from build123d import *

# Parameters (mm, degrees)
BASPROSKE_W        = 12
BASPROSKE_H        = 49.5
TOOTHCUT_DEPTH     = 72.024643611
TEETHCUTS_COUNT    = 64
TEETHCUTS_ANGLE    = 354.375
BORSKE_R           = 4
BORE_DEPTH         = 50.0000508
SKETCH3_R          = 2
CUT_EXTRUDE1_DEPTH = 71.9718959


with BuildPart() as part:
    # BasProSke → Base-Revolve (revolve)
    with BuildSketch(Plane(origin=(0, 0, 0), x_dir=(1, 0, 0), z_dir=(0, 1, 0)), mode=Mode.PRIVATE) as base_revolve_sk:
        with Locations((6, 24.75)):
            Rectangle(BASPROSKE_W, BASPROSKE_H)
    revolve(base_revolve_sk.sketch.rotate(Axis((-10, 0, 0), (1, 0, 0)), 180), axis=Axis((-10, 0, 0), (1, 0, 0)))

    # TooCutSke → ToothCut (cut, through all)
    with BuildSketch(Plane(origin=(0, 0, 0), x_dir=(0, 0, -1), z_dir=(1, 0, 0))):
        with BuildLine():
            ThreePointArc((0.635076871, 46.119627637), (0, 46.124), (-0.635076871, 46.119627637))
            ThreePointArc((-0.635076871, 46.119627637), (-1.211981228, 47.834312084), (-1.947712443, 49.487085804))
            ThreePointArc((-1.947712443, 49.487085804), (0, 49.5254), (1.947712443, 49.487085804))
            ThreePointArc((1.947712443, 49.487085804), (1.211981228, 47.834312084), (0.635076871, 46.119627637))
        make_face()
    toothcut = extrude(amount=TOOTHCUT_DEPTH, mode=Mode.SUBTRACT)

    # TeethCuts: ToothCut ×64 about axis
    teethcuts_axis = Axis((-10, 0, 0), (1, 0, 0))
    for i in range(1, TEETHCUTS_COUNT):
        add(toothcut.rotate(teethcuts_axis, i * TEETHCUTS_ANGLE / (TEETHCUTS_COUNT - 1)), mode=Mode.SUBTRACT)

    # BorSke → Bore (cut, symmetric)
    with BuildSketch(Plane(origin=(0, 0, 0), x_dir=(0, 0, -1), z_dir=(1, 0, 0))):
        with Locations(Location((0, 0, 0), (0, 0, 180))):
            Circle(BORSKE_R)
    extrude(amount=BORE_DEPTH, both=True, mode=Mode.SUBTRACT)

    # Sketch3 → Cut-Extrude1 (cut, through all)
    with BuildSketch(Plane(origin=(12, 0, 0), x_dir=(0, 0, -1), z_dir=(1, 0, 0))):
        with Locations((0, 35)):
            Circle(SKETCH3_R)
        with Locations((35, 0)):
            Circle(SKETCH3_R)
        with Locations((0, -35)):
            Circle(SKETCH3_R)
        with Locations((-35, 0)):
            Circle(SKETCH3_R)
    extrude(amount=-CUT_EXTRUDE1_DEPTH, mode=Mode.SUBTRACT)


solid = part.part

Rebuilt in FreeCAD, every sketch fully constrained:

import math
import FreeCAD as App
import Part
import Sketcher
from FreeCAD import Vector
Q = App.Units.Quantity

doc = App.newDocument("Part")
body = doc.addObject("PartDesign::Body", "Body")

sketch1 = body.newObject("Sketcher::SketchObject", "Sketch")
sketch1.AttachmentSupport = (doc.getObject("XZ_Plane"), [""])
sketch1.MapMode = "FlatFace"
sketch1.addGeometry(Part.LineSegment(Vector(0, -50, 0), Vector(0, 0, 0)), False)
sketch1.addGeometry(Part.LineSegment(Vector(0, 0, 0), Vector(12, 0, 0)), False)
sketch1.addGeometry(Part.LineSegment(Vector(12, 0, 0), Vector(12, -50, 0)), False)
sketch1.addGeometry(Part.LineSegment(Vector(12, -50, 0), Vector(0, -50, 0)), False)
sketch1.addConstraint(Sketcher.Constraint("Coincident", 0, 2, 1, 1))
sketch1.addConstraint(Sketcher.Constraint("Coincident", 1, 2, 2, 1))
sketch1.addConstraint(Sketcher.Constraint("Coincident", 2, 2, 3, 1))
sketch1.addConstraint(Sketcher.Constraint("Coincident", 3, 2, 0, 1))
sketch1.addConstraint(Sketcher.Constraint("Vertical", 0))
sketch1.addConstraint(Sketcher.Constraint("Horizontal", 1))
sketch1.addConstraint(Sketcher.Constraint("Vertical", 2))
sketch1.addConstraint(Sketcher.Constraint("Horizontal", 3))
sketch1.addConstraint(Sketcher.Constraint("Coincident", 0, 2, -1, 1))
sketch1.addConstraint(Sketcher.Constraint("DistanceX", 1, 1, 1, 2, Q("12 mm")))
sketch1.addConstraint(Sketcher.Constraint("DistanceY", 0, 1, 0, 2, Q("49.5 mm")))
revolution = body.newObject("PartDesign::Revolution", "Revolution")
revolution.Profile = sketch1
revolution.ReferenceAxis = (sketch1, ["H_Axis"])
revolution.Angle = 360

sketch2 = body.newObject("Sketcher::SketchObject", "Sketch001")
sketch2.AttachmentSupport = (doc.getObject("YZ_Plane"), [""])
sketch2.MapMode = "FlatFace"
sketch2.addGeometry(Part.ArcOfCircle(Part.Circle(Vector(0, 0, 0), Vector(0, 0, 1), 46.1), math.radians(-0.79), math.radians(0.79)), False)
sketch2.addGeometry(Part.ArcOfCircle(Part.Circle(Vector(40.9, -19.1, 0), Vector(0, 0, 1), 19.2), math.radians(63.3), math.radians(74.1)), False)
sketch2.addGeometry(Part.ArcOfCircle(Part.Circle(Vector(0, 0, 0), Vector(0, 0, 1), 49.5), math.radians(-2.25), math.radians(2.25)), False)
sketch2.addGeometry(Part.ArcOfCircle(Part.Circle(Vector(40.9, 19.1, 0), Vector(0, 0, 1), 19.2), math.radians(-74.1), math.radians(-63.3)), False)
sketch2.addConstraint(Sketcher.Constraint("Coincident", 0, 1, 1, 2))
sketch2.addConstraint(Sketcher.Constraint("Coincident", 1, 1, 2, 1))
sketch2.addConstraint(Sketcher.Constraint("Coincident", 2, 2, 3, 2))
sketch2.addConstraint(Sketcher.Constraint("Coincident", 3, 1, 0, 2))
sketch2.addConstraint(Sketcher.Constraint("Coincident", 0, 3, -1, 1))
sketch2.addConstraint(Sketcher.Constraint("Coincident", 2, 3, -1, 1))
sketch2.addConstraint(Sketcher.Constraint("Equal", 1, 3))
sketch2.addConstraint(Sketcher.Constraint("Symmetric", 1, 3, 3, 3, -1))
sketch2.addConstraint(Sketcher.Constraint("Radius", 1, Q("19.2 mm")))
sketch2.addConstraint(Sketcher.Constraint("Radius", 0, Q("46.124001 mm")))
sketch2.addConstraint(Sketcher.Constraint("Radius", 2, Q("49.5254 mm")))
sketch2.addConstraint(Sketcher.Constraint("DistanceX", 1, 3, 1, 1, Q("8.625899 mm")))
sketch2.addConstraint(Sketcher.Constraint("DistanceY", 1, 3, -1, 1, Q("19.100959 mm")))
pocket1 = body.newObject("PartDesign::Pocket", "Pocket")
pocket1.Profile = sketch2
pocket1.Type = "ThroughAll"
pocket1.Reversed = True
doc.recompute()

polarpattern = body.newObject("PartDesign::PolarPattern", "PolarPattern")
polarpattern.Originals = [pocket1]
polarpattern.Axis = (doc.getObject("X_Axis"), [""])
polarpattern.Angle = 360
polarpattern.Occurrences = 64
body.Tip = polarpattern

sketch3 = body.newObject("Sketcher::SketchObject", "Sketch002")
sketch3.AttachmentSupport = (doc.getObject("YZ_Plane"), [""])
sketch3.MapMode = "FlatFace"
sketch3.addGeometry(Part.Circle(Vector(0, 0, 0), Vector(0, 0, 1), 4), False)
sketch3.addConstraint(Sketcher.Constraint("Coincident", 0, 3, -1, 1))
sketch3.addConstraint(Sketcher.Constraint("Diameter", 0, Q("8 mm")))
pocket2 = body.newObject("PartDesign::Pocket", "Pocket001")
pocket2.Profile = sketch3
pocket2.Length = 100.000102
pocket2.Midplane = True

sketch4 = body.newObject("Sketcher::SketchObject", "Sketch003")
sketch4.AttachmentSupport = (doc.getObject("YZ_Plane"), [""])
sketch4.MapMode = "FlatFace"
sketch4.AttachmentOffset = App.Placement(Vector(0, 0, 12), App.Rotation())
sketch4.addGeometry(Part.Circle(Vector(35, 0, 0), Vector(0, 0, 1), 2), False)
sketch4.addGeometry(Part.Circle(Vector(0, -35, 0), Vector(0, 0, 1), 2), False)
sketch4.addGeometry(Part.Circle(Vector(-35, 0, 0), Vector(0, 0, 1), 2), False)
sketch4.addGeometry(Part.Circle(Vector(0, 35, 0), Vector(0, 0, 1), 2), False)
sketch4.addConstraint(Sketcher.Constraint("Equal", 0, 1))
sketch4.addConstraint(Sketcher.Constraint("Equal", 1, 2))
sketch4.addConstraint(Sketcher.Constraint("Equal", 2, 3))
sketch4.addConstraint(Sketcher.Constraint("Symmetric", 0, 3, 2, 3, -1, 1))
sketch4.addConstraint(Sketcher.Constraint("Symmetric", 1, 3, 3, 3, -1, 1))
sketch4.addConstraint(Sketcher.Constraint("PointOnObject", 0, 3, -1))
sketch4.addConstraint(Sketcher.Constraint("PointOnObject", 1, 3, -2))
sketch4.addConstraint(Sketcher.Constraint("Diameter", 0, Q("4 mm")))
sketch4.addConstraint(Sketcher.Constraint("DistanceX", -1, 1, 0, 3, Q("35 mm")))
sketch4.addConstraint(Sketcher.Constraint("DistanceY", 1, 3, -1, 1, Q("35 mm")))
pocket3 = body.newObject("PartDesign::Pocket", "Pocket002")
pocket3.Profile = sketch4
pocket3.Type = "ThroughAll"

doc.recompute()
